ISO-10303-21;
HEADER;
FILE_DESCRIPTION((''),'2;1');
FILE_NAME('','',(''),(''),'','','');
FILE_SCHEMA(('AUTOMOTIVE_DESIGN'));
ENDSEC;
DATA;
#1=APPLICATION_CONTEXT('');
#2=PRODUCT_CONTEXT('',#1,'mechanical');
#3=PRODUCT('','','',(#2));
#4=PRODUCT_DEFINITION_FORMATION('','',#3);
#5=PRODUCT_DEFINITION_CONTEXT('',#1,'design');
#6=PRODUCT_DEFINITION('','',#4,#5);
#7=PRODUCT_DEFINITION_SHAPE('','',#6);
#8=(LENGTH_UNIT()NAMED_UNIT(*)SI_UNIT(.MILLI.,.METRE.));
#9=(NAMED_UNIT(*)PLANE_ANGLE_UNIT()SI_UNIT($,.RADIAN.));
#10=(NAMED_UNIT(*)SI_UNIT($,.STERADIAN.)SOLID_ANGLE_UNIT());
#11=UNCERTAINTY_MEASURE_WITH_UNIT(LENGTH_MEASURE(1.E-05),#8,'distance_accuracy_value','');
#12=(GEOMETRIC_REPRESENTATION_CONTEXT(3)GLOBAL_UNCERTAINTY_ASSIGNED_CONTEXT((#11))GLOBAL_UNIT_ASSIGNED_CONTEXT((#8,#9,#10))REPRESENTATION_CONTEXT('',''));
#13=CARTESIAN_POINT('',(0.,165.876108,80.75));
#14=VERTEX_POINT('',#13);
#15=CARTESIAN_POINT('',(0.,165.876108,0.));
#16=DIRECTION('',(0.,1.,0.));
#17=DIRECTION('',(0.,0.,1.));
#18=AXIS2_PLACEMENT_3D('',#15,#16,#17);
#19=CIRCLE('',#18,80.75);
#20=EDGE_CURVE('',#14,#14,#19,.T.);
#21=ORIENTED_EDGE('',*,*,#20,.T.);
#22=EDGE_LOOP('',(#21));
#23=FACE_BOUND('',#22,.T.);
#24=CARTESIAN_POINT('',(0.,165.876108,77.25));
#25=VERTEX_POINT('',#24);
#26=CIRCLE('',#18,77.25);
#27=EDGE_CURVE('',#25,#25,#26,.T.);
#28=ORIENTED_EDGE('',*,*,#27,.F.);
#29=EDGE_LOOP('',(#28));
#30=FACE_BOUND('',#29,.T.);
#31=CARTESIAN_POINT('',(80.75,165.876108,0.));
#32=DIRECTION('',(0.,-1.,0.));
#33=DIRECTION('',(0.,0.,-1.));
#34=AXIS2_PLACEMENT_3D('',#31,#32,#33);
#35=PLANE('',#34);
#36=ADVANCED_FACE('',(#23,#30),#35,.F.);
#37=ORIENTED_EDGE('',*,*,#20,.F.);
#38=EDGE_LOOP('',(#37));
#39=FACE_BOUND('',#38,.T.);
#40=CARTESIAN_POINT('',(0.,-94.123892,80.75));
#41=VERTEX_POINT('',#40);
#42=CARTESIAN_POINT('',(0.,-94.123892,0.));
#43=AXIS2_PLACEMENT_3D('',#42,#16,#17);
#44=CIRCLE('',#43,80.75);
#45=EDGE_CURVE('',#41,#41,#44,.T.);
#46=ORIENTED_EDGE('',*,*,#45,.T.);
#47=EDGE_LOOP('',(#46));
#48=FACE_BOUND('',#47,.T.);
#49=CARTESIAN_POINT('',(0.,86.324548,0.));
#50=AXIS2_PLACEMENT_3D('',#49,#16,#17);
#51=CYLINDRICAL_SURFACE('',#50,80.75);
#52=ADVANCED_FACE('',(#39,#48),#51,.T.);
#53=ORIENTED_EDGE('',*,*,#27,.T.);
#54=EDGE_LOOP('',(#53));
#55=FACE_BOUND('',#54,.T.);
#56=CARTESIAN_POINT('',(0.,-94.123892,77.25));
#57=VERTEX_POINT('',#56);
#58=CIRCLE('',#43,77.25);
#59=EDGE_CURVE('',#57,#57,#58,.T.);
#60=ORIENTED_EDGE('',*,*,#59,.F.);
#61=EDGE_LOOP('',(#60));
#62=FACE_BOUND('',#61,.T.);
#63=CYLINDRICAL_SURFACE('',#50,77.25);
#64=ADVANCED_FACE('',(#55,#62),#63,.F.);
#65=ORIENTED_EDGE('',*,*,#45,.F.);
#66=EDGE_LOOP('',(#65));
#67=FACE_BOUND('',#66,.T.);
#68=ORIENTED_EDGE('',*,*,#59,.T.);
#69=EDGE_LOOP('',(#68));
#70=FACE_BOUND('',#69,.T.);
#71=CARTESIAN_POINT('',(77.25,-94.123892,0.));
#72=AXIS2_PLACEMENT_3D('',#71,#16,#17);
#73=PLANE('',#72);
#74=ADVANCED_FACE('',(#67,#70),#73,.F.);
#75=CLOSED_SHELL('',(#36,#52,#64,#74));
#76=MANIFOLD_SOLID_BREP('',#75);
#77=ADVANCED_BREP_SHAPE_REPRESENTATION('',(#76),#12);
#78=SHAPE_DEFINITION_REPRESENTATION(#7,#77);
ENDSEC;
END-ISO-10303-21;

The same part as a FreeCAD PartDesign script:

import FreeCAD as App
import Part
import Sketcher
from FreeCAD import Vector

doc = App.newDocument("Part")
params = doc.addObject("Spreadsheet::Sheet", "Params")
for row, (alias, value) in enumerate([
    ("sketch1_height", "260 mm"),
    ("sketch1_width", "3.5 mm"),
    ("revolution_angle", "360 deg"),
], start=1):
    params.set(f"A{row}", alias)
    params.set(f"B{row}", "=" + value)
    params.setAlias(f"B{row}", alias)

body = doc.addObject("PartDesign::Body", "Body")

# Sketch on XY plane
sketch1 = doc.addObject("Sketcher::SketchObject", "Sketch")
body.addObject(sketch1)
sketch1.AttachmentSupport = (doc.XY_Plane, [""])
sketch1.MapMode = "FlatFace"
sketch1.addGeometry([
    Part.LineSegment(Vector(77.2, 165.9, 0), Vector(77.2, -94.1, 0)),
    Part.LineSegment(Vector(77.2, -94.1, 0), Vector(80.8, -94.1, 0)),
    Part.LineSegment(Vector(80.8, -94.1, 0), Vector(80.8, 165.9, 0)),
    Part.LineSegment(Vector(80.8, 165.9, 0), Vector(77.2, 165.9, 0)),
], False)
sketch1.addConstraint([
    Sketcher.Constraint("Coincident", 0, 2, 1, 1),
    Sketcher.Constraint("Coincident", 1, 2, 2, 1),
    Sketcher.Constraint("Coincident", 2, 2, 3, 1),
    Sketcher.Constraint("Coincident", 3, 2, 0, 1),
    Sketcher.Constraint("Vertical", 0),
    Sketcher.Constraint("Horizontal", 1),
    Sketcher.Constraint("Vertical", 2),
    Sketcher.Constraint("Horizontal", 3),
    Sketcher.Constraint("DistanceY", 0, 2, 0, 1, 260.0),
    Sketcher.Constraint("DistanceX", 1, 1, 1, 2, 3.5),
    Sketcher.Constraint("DistanceX", -1, 1, 0, 2, 77.25),
    Sketcher.Constraint("DistanceY", 0, 2, -1, 1, 94.123892),
])
sketch1.setExpression("Constraints[8]", "Params.sketch1_height")
sketch1.setExpression("Constraints[9]", "Params.sketch1_width")
revolution = doc.addObject("PartDesign::Revolution", "Revolution")
body.addObject(revolution)
revolution.Profile = sketch1
revolution.ReferenceAxis = (sketch1, ["V_Axis"])
revolution.setExpression("Angle", "Params.revolution_angle")

doc.recompute()
